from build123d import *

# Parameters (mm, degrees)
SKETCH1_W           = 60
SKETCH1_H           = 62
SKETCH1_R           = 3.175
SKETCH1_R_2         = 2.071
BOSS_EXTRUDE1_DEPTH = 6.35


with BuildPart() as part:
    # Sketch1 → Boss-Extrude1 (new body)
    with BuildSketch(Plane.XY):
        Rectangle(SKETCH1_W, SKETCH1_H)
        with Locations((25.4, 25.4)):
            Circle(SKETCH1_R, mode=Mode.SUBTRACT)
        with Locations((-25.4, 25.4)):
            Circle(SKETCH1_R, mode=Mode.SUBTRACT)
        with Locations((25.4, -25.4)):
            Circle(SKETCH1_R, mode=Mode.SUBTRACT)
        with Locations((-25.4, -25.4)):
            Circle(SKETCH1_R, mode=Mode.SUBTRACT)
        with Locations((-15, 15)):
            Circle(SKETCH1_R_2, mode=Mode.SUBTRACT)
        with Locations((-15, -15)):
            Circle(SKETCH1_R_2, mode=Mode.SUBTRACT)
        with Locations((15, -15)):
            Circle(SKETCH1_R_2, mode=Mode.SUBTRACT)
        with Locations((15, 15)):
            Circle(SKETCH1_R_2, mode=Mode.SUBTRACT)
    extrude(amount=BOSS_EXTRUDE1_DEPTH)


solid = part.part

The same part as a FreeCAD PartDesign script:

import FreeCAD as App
import Part
import Sketcher
from FreeCAD import Vector


def add_polygon(sketch, points):
    """Adds a closed chain of lines whose ends are joined by coincident constraints."""
    first, n = sketch.GeometryCount, len(points)
    for a, b in zip(points, points[1:] + points[:1]):
        sketch.addGeometry(Part.LineSegment(App.Vector(*a, 0), App.Vector(*b, 0)), False)
    for i in range(n):
        sketch.addConstraint(Sketcher.Constraint("Coincident", first + i, 2, first + (i + 1) % n, 1))

doc = App.newDocument("Part")
body = doc.addObject("PartDesign::Body", "Body")

sketch1 = doc.addObject("Sketcher::SketchObject", "Sketch")
body.addObject(sketch1)
sketch1.AttachmentSupport = (doc.XY_Plane, [""])
sketch1.MapMode = "FlatFace"
add_polygon(sketch1, [(-30, 31), (-30, -31), (30, -31), (30, 31)])
sketch1.addGeometry(Part.Circle(Vector(-25.4, -25.4, 0), Vector(0, 0, 1), 3.175), False)
sketch1.addGeometry(Part.Circle(Vector(-15, -15, 0), Vector(0, 0, 1), 2.071), False)
sketch1.addGeometry(Part.Circle(Vector(25.4, -25.4, 0), Vector(0, 0, 1), 3.175), False)
sketch1.addGeometry(Part.Circle(Vector(15, -15, 0), Vector(0, 0, 1), 2.071), False)
sketch1.addGeometry(Part.Circle(Vector(-15, 15, 0), Vector(0, 0, 1), 2.071), False)
sketch1.addGeometry(Part.Circle(Vector(-25.4, 25.4, 0), Vector(0, 0, 1), 3.175), False)
sketch1.addGeometry(Part.Circle(Vector(15, 15, 0), Vector(0, 0, 1), 2.071), False)
sketch1.addGeometry(Part.Circle(Vector(25.4, 25.4, 0), Vector(0, 0, 1), 3.175), False)
sketch1.addConstraint([
    Sketcher.Constraint("Vertical", 0),
    Sketcher.Constraint("Horizontal", 1),
    Sketcher.Constraint("Vertical", 2),
    Sketcher.Constraint("Horizontal", 3),
    Sketcher.Constraint("Equal", 4, 6),
    Sketcher.Constraint("Equal", 5, 7),
    Sketcher.Constraint("Equal", 7, 8),
    Sketcher.Constraint("Equal", 6, 9),
    Sketcher.Constraint("Equal", 8, 10),
    Sketcher.Constraint("Equal", 9, 11),
    Sketcher.Constraint("Symmetric", 7, 3, 8, 3, -1, 1),
    Sketcher.Constraint("Symmetric", 6, 3, 9, 3, -1, 1),
    Sketcher.Constraint("Symmetric", 5, 3, 10, 3, -1, 1),
    Sketcher.Constraint("Symmetric", 4, 3, 11, 3, -1, 1),
    Sketcher.Constraint("Symmetric", 0, 2, 2, 2, -1, 1),
    Sketcher.Constraint("Symmetric", 4, 3, 6, 3, -2),
    Sketcher.Constraint("Symmetric", 5, 3, 7, 3, -2),
    Sketcher.Constraint("Diameter", 4, 6.35),
    Sketcher.Constraint("DistanceX", 1, 1, 1, 2, 60.0),
    Sketcher.Constraint("DistanceY", 0, 2, 0, 1, 62.0),
    Sketcher.Constraint("Diameter", 5, 4.142),
    Sketcher.Constraint("DistanceX", 5, 3, -1, 1, 15.0),
    Sketcher.Constraint("DistanceY", 5, 3, -1, 1, 15.0),
    Sketcher.Constraint("DistanceX", 4, 3, -1, 1, 25.4),
    Sketcher.Constraint("DistanceY", 4, 3, -1, 1, 25.4),
])
pad1 = doc.addObject("PartDesign::Pad", "Pad")
body.addObject(pad1)
pad1.Profile = sketch1
pad1.Length = 6.35

doc.recompute()
